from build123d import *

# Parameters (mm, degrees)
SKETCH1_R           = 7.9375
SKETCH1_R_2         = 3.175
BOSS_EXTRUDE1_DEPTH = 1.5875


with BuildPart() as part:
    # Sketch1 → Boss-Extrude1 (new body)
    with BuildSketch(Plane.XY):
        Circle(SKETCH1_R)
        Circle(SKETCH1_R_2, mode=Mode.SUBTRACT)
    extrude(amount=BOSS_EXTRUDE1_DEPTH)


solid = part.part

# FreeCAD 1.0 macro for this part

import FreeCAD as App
import Part
import Sketcher
from FreeCAD import Vector
Q = App.Units.Quantity

doc = App.newDocument("Part")
body = doc.addObject("PartDesign::Body", "Body")

# Sketch on XY plane
sketch1 = doc.addObject("Sketcher::SketchObject", "Sketch")
body.addObject(sketch1)
sketch1.AttachmentSupport = (doc.XY_Plane, [""])
sketch1.MapMode = "FlatFace"
sketch1.addGeometry([
    Part.Circle(Vector(0, 0, 0), Vector(0, 0, 1), 7.9),
    Part.Circle(Vector(0, 0, 0), Vector(0, 0, 1), 3.2),
], False)
sketch1.addConstraint([
    Sketcher.Constraint("Coincident", 0, 3, -1, 1),
    Sketcher.Constraint("Coincident", 1, 3, -1, 1),
    Sketcher.Constraint("Diameter", 1, Q("0.25 in")),
    Sketcher.Constraint("Diameter", 0, Q("0.625 in")),
])
pad1 = doc.addObject("PartDesign::Pad", "Pad")
body.addObject(pad1)
pad1.Profile = sketch1
pad1.Length = Q("0.0625 in")

doc.recompute()
